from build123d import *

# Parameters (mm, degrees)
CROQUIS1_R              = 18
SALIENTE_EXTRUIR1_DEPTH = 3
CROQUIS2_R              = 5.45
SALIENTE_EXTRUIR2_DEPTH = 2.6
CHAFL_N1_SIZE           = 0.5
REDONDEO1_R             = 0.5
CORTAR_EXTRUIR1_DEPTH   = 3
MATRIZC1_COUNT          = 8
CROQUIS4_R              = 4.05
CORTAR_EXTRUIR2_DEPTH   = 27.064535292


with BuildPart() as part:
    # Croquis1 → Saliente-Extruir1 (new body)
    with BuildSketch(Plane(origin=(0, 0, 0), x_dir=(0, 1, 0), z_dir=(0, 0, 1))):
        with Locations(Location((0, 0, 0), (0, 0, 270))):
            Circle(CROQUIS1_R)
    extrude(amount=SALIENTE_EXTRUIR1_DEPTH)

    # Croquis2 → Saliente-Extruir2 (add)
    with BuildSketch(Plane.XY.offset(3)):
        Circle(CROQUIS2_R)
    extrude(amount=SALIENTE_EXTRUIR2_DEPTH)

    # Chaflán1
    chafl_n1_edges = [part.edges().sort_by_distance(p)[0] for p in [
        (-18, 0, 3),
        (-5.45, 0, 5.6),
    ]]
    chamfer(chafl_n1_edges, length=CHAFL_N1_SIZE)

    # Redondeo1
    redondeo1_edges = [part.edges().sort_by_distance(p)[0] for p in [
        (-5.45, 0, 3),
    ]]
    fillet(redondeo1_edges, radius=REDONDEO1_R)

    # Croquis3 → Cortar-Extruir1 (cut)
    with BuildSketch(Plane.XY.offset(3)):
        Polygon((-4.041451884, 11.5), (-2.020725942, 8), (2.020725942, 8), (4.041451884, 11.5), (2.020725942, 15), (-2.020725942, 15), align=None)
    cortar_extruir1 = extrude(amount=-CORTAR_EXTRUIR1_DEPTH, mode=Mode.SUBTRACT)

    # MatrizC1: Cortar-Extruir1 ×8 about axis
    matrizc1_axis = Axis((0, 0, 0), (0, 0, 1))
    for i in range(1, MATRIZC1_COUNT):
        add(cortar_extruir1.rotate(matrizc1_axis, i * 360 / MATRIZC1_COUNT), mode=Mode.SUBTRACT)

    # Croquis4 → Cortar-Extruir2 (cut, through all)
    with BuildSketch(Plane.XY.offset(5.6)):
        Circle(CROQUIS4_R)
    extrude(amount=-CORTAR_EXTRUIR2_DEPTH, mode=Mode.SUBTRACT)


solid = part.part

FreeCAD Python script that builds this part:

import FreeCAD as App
import Part
import Sketcher

V = App.Vector
Q = App.Units.Quantity


def edges_at(feature, points):
    """Names of the edges that pass closest to the given points."""
    edges = feature.Shape.Edges
    near = lambda p: min(range(len(edges)), key=lambda i: edges[i].distToShape(Part.Vertex(*p))[0])
    return sorted({f"Edge{near(p) + 1}" for p in points})

doc = App.newDocument("Part")
body = doc.addObject("PartDesign::Body", "Body")

# Sketch on XY plane
sketch1 = doc.addObject("Sketcher::SketchObject", "Sketch")
body.addObject(sketch1)
sketch1.AttachmentSupport = (doc.XY_Plane, [""])
sketch1.MapMode = "FlatFace"
sketch1.addGeometry(Part.Circle(V(0, 0, 0), V(0, 0, 1), 18), False)
sketch1.addConstraint([
    Sketcher.Constraint("Coincident", 0, 3, -1, 1),
    Sketcher.Constraint("Diameter", 0, Q("36 mm")),
])
pad1 = doc.addObject("PartDesign::Pad", "Pad")
body.addObject(pad1)
pad1.Profile = sketch1
pad1.Length = 3

# Sketch on XY plane
sketch2 = doc.addObject("Sketcher::SketchObject", "Sketch001")
body.addObject(sketch2)
sketch2.AttachmentSupport = (doc.XY_Plane, [""])
sketch2.MapMode = "FlatFace"
sketch2.AttachmentOffset = App.Placement(V(0, 0, 3), App.Rotation())
sketch2.addGeometry(Part.Circle(V(0, 0, 0), V(0, 0, 1), 5), False)
sketch2.addConstraint([
    Sketcher.Constraint("Coincident", 0, 3, -1, 1),
    Sketcher.Constraint("Diameter", 0, Q("10.9 mm")),
])
pad2 = doc.addObject("PartDesign::Pad", "Pad001")
body.addObject(pad2)
pad2.Profile = sketch2
pad2.Length = 2.6
doc.recompute()

chamfer = doc.addObject("PartDesign::Chamfer", "Chamfer")
body.addObject(chamfer)
chamfer.Base = (pad2, edges_at(pad2, [(-18, 0, 3), (-5.45, 0, 5.6)]))
chamfer.Size = 0.5
doc.recompute()

fillet = doc.addObject("PartDesign::Fillet", "Fillet")
body.addObject(fillet)
fillet.Base = (chamfer, edges_at(chamfer, [(-5.45, 0, 3)]))
fillet.Radius = 0.5

# Sketch on XY plane
sketch3 = doc.addObject("Sketcher::SketchObject", "Sketch002")
body.addObject(sketch3)
sketch3.AttachmentSupport = (doc.XY_Plane, [""])
sketch3.MapMode = "FlatFace"
sketch3.AttachmentOffset = App.Placement(V(0, 0, 3), App.Rotation())
sketch3.addGeometry([
    Part.LineSegment(V(-4, 11.5, 0), V(-2, 8, 0)),  # 0
    Part.LineSegment(V(-2, 8, 0), V(2, 8, 0)),  # 1
    Part.LineSegment(V(2, 8, 0), V(4, 11.5, 0)),  # 2
    Part.LineSegment(V(4, 11.5, 0), V(2, 15, 0)),  # 3
    Part.LineSegment(V(2, 15, 0), V(-2, 15, 0)),  # 4
    Part.LineSegment(V(-2, 15, 0), V(-4, 11.5, 0)),  # 5
], False)
sketch3.addConstraint([
    Sketcher.Constraint("Coincident", 0, 2, 1, 1),
    Sketcher.Constraint("Coincident", 1, 2, 2, 1),
    Sketcher.Constraint("Coincident", 2, 2, 3, 1),
    Sketcher.Constraint("Coincident", 3, 2, 4, 1),
    Sketcher.Constraint("Coincident", 4, 2, 5, 1),
    Sketcher.Constraint("Coincident", 5, 2, 0, 1),
    Sketcher.Constraint("Horizontal", 1),
    Sketcher.Constraint("Horizontal", 4),
    Sketcher.Constraint("Symmetric", 2, 2, 5, 2, -2),
    Sketcher.Constraint("Parallel", 0, 3),
    Sketcher.Constraint("Parallel", 2, 5),
    Sketcher.Constraint("Vertical", 1, 2, 3, 2),
    Sketcher.Constraint("Vertical", 0, 2, 4, 2),
    Sketcher.Constraint("Angle", 0, Q("-60 deg")),
    Sketcher.Constraint("DistanceY", -1, 1, 0, 2, Q("8 mm")),
    Sketcher.Constraint("DistanceY", -1, 1, 3, 2, Q("15 mm")),
    Sketcher.Constraint("DistanceX", 1, 1, 1, 2, Q("4.041452 mm")),
])
pocket1 = doc.addObject("PartDesign::Pocket", "Pocket")
body.addObject(pocket1)
pocket1.Profile = sketch3
pocket1.Length = 3
doc.recompute()

polarpattern = doc.addObject("PartDesign::PolarPattern", "PolarPattern")
body.addObject(polarpattern)
polarpattern.Originals = [pocket1]
polarpattern.Axis = (doc.Z_Axis, [""])
polarpattern.Angle = 360
polarpattern.Occurrences = 8
body.Tip = polarpattern

# Sketch on XY plane
sketch4 = doc.addObject("Sketcher::SketchObject", "Sketch003")
body.addObject(sketch4)
sketch4.AttachmentSupport = (doc.XY_Plane, [""])
sketch4.MapMode = "FlatFace"
sketch4.AttachmentOffset = App.Placement(V(0, 0, 5.6), App.Rotation())
sketch4.addGeometry(Part.Circle(V(0, 0, 0), V(0, 0, 1), 4), False)
sketch4.addConstraint([
    Sketcher.Constraint("Coincident", 0, 3, -1, 1),
    Sketcher.Constraint("Diameter", 0, Q("8.1 mm")),
])
pocket2 = doc.addObject("PartDesign::Pocket", "Pocket001")
body.addObject(pocket2)
pocket2.Profile = sketch4
pocket2.Type = "ThroughAll"

doc.recompute()
